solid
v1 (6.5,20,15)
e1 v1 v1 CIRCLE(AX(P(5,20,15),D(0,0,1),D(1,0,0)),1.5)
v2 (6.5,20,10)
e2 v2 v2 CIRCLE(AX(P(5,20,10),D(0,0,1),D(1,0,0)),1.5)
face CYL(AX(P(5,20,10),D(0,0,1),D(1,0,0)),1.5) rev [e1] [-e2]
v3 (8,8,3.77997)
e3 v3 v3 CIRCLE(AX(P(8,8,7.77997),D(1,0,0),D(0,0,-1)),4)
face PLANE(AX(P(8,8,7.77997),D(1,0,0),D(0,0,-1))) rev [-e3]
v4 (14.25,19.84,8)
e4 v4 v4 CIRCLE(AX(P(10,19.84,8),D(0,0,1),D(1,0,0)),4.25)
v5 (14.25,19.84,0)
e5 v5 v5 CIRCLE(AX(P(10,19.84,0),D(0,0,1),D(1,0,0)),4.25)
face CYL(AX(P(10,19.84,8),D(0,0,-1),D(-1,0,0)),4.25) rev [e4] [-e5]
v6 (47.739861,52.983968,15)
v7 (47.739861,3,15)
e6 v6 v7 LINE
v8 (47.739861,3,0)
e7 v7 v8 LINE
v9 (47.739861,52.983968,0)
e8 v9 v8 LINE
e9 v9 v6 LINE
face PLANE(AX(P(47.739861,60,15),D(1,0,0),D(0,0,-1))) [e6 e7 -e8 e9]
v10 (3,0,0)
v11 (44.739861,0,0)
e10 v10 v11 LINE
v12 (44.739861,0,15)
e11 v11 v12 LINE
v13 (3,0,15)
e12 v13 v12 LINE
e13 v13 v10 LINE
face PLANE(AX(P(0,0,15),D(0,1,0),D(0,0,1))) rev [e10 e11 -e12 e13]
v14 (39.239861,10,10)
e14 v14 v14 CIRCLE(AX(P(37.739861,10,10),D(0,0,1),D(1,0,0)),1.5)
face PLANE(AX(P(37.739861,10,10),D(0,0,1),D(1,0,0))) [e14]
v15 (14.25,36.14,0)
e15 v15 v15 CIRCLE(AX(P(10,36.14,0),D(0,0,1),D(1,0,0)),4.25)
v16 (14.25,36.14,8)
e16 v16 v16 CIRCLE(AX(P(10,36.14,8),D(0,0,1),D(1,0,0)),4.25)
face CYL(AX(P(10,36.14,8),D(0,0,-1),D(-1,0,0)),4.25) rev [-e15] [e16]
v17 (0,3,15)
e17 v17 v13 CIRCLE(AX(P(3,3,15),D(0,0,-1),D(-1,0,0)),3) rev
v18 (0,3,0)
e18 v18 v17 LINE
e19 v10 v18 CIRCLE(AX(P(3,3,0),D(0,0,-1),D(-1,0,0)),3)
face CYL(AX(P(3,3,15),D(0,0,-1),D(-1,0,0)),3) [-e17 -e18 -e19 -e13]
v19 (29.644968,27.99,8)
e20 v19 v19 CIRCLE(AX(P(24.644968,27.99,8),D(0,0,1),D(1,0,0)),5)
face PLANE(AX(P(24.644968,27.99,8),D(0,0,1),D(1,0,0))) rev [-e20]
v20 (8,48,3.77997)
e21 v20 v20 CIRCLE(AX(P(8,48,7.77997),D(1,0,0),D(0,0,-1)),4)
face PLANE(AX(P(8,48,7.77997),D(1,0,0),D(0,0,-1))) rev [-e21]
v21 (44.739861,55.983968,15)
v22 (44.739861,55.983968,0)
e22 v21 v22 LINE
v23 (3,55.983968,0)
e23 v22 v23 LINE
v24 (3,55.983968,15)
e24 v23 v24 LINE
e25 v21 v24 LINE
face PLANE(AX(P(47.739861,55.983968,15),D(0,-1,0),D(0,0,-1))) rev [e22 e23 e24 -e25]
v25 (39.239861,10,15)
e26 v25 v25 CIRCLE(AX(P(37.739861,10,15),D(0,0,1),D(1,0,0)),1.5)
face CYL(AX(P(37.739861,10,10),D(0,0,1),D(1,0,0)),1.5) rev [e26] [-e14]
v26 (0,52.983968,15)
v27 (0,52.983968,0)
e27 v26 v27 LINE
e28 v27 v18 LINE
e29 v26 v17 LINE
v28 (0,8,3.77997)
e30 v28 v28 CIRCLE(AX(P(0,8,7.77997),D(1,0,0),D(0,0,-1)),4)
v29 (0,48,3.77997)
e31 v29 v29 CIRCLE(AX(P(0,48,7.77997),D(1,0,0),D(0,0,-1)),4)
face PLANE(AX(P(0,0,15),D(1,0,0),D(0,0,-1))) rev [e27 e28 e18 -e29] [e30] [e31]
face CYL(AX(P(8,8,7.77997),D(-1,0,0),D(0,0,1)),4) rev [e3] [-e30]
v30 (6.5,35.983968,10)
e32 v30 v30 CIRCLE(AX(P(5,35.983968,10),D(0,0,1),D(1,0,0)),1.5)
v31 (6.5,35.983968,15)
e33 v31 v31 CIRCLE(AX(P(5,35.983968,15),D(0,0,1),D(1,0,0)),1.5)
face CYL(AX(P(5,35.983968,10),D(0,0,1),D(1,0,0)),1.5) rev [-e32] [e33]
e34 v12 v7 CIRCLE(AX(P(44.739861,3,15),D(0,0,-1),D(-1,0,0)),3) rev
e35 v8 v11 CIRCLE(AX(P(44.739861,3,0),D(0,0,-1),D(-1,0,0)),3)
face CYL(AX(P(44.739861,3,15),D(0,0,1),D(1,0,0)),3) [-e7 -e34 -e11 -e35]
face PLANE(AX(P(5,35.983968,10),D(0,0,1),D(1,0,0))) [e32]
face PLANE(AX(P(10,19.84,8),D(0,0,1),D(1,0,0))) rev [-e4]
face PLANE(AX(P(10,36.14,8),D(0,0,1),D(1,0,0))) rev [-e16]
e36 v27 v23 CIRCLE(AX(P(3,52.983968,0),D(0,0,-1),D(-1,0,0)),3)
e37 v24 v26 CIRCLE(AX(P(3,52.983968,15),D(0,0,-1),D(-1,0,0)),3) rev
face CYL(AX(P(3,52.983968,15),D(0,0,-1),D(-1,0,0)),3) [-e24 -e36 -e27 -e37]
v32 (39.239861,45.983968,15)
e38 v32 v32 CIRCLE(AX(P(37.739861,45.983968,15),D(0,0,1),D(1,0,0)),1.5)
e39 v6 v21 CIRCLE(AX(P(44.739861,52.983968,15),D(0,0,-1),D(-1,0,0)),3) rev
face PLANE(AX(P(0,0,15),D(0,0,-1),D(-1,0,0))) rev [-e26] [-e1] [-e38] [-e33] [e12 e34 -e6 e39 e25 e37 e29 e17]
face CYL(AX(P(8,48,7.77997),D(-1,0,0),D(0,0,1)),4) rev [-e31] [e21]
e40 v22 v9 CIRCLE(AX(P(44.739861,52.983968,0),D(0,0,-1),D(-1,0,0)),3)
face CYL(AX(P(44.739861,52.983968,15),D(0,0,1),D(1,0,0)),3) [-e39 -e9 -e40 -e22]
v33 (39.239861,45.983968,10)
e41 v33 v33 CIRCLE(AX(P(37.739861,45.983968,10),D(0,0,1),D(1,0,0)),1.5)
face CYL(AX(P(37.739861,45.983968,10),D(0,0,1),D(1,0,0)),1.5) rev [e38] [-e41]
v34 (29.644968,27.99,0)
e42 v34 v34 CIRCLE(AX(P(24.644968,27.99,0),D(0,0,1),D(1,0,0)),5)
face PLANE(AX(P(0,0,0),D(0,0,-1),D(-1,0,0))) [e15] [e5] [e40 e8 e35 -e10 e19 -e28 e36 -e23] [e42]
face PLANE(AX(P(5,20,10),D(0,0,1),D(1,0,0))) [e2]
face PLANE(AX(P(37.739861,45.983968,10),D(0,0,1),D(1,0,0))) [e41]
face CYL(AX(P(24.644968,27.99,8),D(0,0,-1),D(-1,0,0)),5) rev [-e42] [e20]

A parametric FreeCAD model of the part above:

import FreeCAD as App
import Part
import Sketcher
from FreeCAD import Vector
Q = App.Units.Quantity


def edges_at(feature, points):
    """Names of the edges that pass closest to the given points."""
    edges = feature.Shape.Edges
    near = lambda p: min(range(len(edges)), key=lambda i: edges[i].distToShape(Part.Vertex(*p))[0])
    return sorted({f"Edge{near(p) + 1}" for p in points})

doc = App.newDocument("Part")
body = doc.addObject("PartDesign::Body", "Body")

# Sketch on XY plane
sketch1 = body.newObject("Sketcher::SketchObject", "Sketch")
sketch1.AttachmentSupport = (doc.getObject("XY_Plane"), [""])
sketch1.MapMode = "FlatFace"
sketch1.addGeometry(Part.LineSegment(Vector(0, 60, 0), Vector(0, 0, 0)), False)
sketch1.addGeometry(Part.LineSegment(Vector(0, 0, 0), Vector(50, 0, 0)), False)
sketch1.addGeometry(Part.LineSegment(Vector(50, 0, 0), Vector(50, 60, 0)), False)
sketch1.addGeometry(Part.LineSegment(Vector(50, 60, 0), Vector(0, 60, 0)), False)
sketch1.addConstraint(Sketcher.Constraint("Coincident", 0, 2, 1, 1))
sketch1.addConstraint(Sketcher.Constraint("Coincident", 1, 2, 2, 1))
sketch1.addConstraint(Sketcher.Constraint("Coincident", 2, 2, 3, 1))
sketch1.addConstraint(Sketcher.Constraint("Coincident", 3, 2, 0, 1))
sketch1.addConstraint(Sketcher.Constraint("Vertical", 0))
sketch1.addConstraint(Sketcher.Constraint("Horizontal", 1))
sketch1.addConstraint(Sketcher.Constraint("Vertical", 2))
sketch1.addConstraint(Sketcher.Constraint("Horizontal", 3))
sketch1.addConstraint(Sketcher.Constraint("Coincident", 0, 2, -1, 1))
sketch1.addConstraint(Sketcher.Constraint("DistanceX", 1, 1, 1, 2, Q("50 mm")))
sketch1.addConstraint(Sketcher.Constraint("DistanceY", 0, 2, 0, 1, Q("60 mm")))
pad1 = body.newObject("PartDesign::Pad", "Pad")
pad1.Profile = sketch1
pad1.Length = 15

# Sketch on XY plane
sketch2 = body.newObject("Sketcher::SketchObject", "Sketch001")
sketch2.AttachmentSupport = (doc.getObject("XY_Plane"), [""])
sketch2.MapMode = "FlatFace"
sketch2.addGeometry(Part.Circle(Vector(10, 36.1, 0), Vector(0, 0, 1), 4.2), False)
sketch2.addGeometry(Part.Circle(Vector(10, 19.8, 0), Vector(0, 0, 1), 4.2), False)
sketch2.addGeometry(Part.Circle(Vector(24.6, 28, 0), Vector(0, 0, 1), 5), False)
sketch2.addConstraint(Sketcher.Constraint("Equal", 0, 1))
sketch2.addConstraint(Sketcher.Constraint("Vertical", 0, 3, 1, 3))
sketch2.addConstraint(Sketcher.Constraint("Diameter", 2, Q("10 mm")))
sketch2.addConstraint(Sketcher.Constraint("Diameter", 0, Q("8.5 mm")))
sketch2.addConstraint(Sketcher.Constraint("DistanceX", -1, 1, 0, 3, Q("10 mm")))
sketch2.addConstraint(Sketcher.Constraint("DistanceY", 1, 3, 0, 3, Q("16.3 mm")))
sketch2.addConstraint(Sketcher.Constraint("DistanceY", -1, 1, 0, 3, Q("36.14 mm")))
sketch2.addConstraint(Sketcher.Constraint("DistanceY", -1, 1, 2, 3, Q("27.99 mm")))
sketch2.addConstraint(Sketcher.Constraint("DistanceX", -1, 1, 2, 3, Q("24.644968 mm")))
pocket1 = body.newObject("PartDesign::Pocket", "Pocket")
pocket1.Profile = sketch2
pocket1.Length = 8
pocket1.Reversed = True

# Sketch on XY plane
sketch3 = body.newObject("Sketcher::SketchObject", "Sketch002")
sketch3.AttachmentSupport = (doc.getObject("XY_Plane"), [""])
sketch3.MapMode = "FlatFace"
sketch3.addGeometry(Part.LineSegment(Vector(47.7, 60, 0), Vector(47.7, 0, 0)), False)
sketch3.addGeometry(Part.LineSegment(Vector(47.7, 0, 0), Vector(50, 0, 0)), False)
sketch3.addGeometry(Part.LineSegment(Vector(50, 0, 0), Vector(50, 60, 0)), False)
sketch3.addGeometry(Part.LineSegment(Vector(50, 60, 0), Vector(47.7, 60, 0)), False)
sketch3.addConstraint(Sketcher.Constraint("Coincident", 0, 2, 1, 1))
sketch3.addConstraint(Sketcher.Constraint("Coincident", 1, 2, 2, 1))
sketch3.addConstraint(Sketcher.Constraint("Coincident", 2, 2, 3, 1))
sketch3.addConstraint(Sketcher.Constraint("Coincident", 3, 2, 0, 1))
sketch3.addConstraint(Sketcher.Constraint("Vertical", 0))
sketch3.addConstraint(Sketcher.Constraint("Horizontal", 1))
sketch3.addConstraint(Sketcher.Constraint("Vertical", 2))
sketch3.addConstraint(Sketcher.Constraint("Horizontal", 3))
sketch3.addConstraint(Sketcher.Constraint("PointOnObject", 0, 2, -1))
sketch3.addConstraint(Sketcher.Constraint("DistanceY", 0, 2, 0, 1, Q("60 mm")))
sketch3.addConstraint(Sketcher.Constraint("DistanceX", -1, 1, 1, 2, Q("50 mm")))
sketch3.addConstraint(Sketcher.Constraint("DistanceX", 1, 1, 1, 2, Q("2.260139 mm")))
pocket2 = body.newObject("PartDesign::Pocket", "Pocket001")
pocket2.Profile = sketch3
pocket2.Type = "ThroughAll"
pocket2.Reversed = True

# Sketch on YZ plane
sketch4 = body.newObject("Sketcher::SketchObject", "Sketch003")
sketch4.AttachmentSupport = (doc.getObject("YZ_Plane"), [""])
sketch4.MapMode = "FlatFace"
sketch4.addGeometry(Part.Circle(Vector(8, 7.8, 0), Vector(0, 0, 1), 4), False)
sketch4.addGeometry(Part.Circle(Vector(48, 7.8, 0), Vector(0, 0, 1), 4), False)
sketch4.addConstraint(Sketcher.Constraint("Equal", 0, 1))
sketch4.addConstraint(Sketcher.Constraint("Horizontal", 0, 3, 1, 3))
sketch4.addConstraint(Sketcher.Constraint("Diameter", 0, Q("8 mm")))
sketch4.addConstraint(Sketcher.Constraint("DistanceX", -1, 1, 0, 3, Q("8 mm")))
sketch4.addConstraint(Sketcher.Constraint("DistanceX", -1, 1, 1, 3, Q("48 mm")))
sketch4.addConstraint(Sketcher.Constraint("DistanceY", -1, 1, 0, 3, Q("7.77997 mm")))
pocket3 = body.newObject("PartDesign::Pocket", "Pocket002")
pocket3.Profile = sketch4
pocket3.Length = 8
pocket3.Reversed = True

# Sketch on XY plane
sketch5 = body.newObject("Sketcher::SketchObject", "Sketch004")
sketch5.AttachmentSupport = (doc.getObject("XY_Plane"), [""])
sketch5.MapMode = "FlatFace"
sketch5.addGeometry(Part.LineSegment(Vector(47.7, 60, 0), Vector(47.7, 56, 0)), False)
sketch5.addGeometry(Part.LineSegment(Vector(47.7, 56, 0), Vector(0, 56, 0)), False)
sketch5.addGeometry(Part.LineSegment(Vector(0, 56, 0), Vector(0, 60, 0)), False)
sketch5.addGeometry(Part.LineSegment(Vector(0, 60, 0), Vector(47.7, 60, 0)), False)
sketch5.addConstraint(Sketcher.Constraint("Coincident", 0, 2, 1, 1))
sketch5.addConstraint(Sketcher.Constraint("Coincident", 1, 2, 2, 1))
sketch5.addConstraint(Sketcher.Constraint("Coincident", 2, 2, 3, 1))
sketch5.addConstraint(Sketcher.Constraint("Coincident", 3, 2, 0, 1))
sketch5.addConstraint(Sketcher.Constraint("Vertical", 0))
sketch5.addConstraint(Sketcher.Constraint("Horizontal", 1))
sketch5.addConstraint(Sketcher.Constraint("Vertical", 2))
sketch5.addConstraint(Sketcher.Constraint("Horizontal", 3))
sketch5.addConstraint(Sketcher.Constraint("PointOnObject", 1, 2, -2))
sketch5.addConstraint(Sketcher.Constraint("DistanceY", -1, 1, 2, 2, Q("60 mm")))
sketch5.addConstraint(Sketcher.Constraint("DistanceX", 1, 2, 1, 1, Q("47.739861 mm")))
sketch5.addConstraint(Sketcher.Constraint("DistanceY", 0, 2, 0, 1, Q("4.016032 mm")))
pocket4 = body.newObject("PartDesign::Pocket", "Pocket003")
pocket4.Profile = sketch5
pocket4.Type = "ThroughAll"
pocket4.Reversed = True
doc.recompute()

fillet = body.newObject("PartDesign::Fillet", "Fillet")
fillet.Base = (pocket4, edges_at(pocket4, [
    (47.74, 0, 7.5),
    (47.74, 55.984, 7.5),
    (0, 55.984, 7.5),
    (0, 0, 7.5),
]))
fillet.Radius = 3

# Sketch on XY plane
sketch6 = body.newObject("Sketcher::SketchObject", "Sketch005")
sketch6.AttachmentSupport = (doc.getObject("XY_Plane"), [""])
sketch6.MapMode = "FlatFace"
sketch6.AttachmentOffset = App.Placement(Vector(0, 0, 15), App.Rotation())
sketch6.addGeometry(Part.Circle(Vector(37.7, 46, 0), Vector(0, 0, 1), 1.5), False)
sketch6.addGeometry(Part.Circle(Vector(37.7, 10, 0), Vector(0, 0, 1), 1.5), False)
sketch6.addGeometry(Part.Circle(Vector(5, 20, 0), Vector(0, 0, 1), 1.5), False)
sketch6.addGeometry(Part.Circle(Vector(5, 36, 0), Vector(0, 0, 1), 1.5), False)
sketch6.addConstraint(Sketcher.Constraint("Equal", 0, 1))
sketch6.addConstraint(Sketcher.Constraint("Equal", 1, 2))
sketch6.addConstraint(Sketcher.Constraint("Equal", 2, 3))
sketch6.addConstraint(Sketcher.Constraint("Vertical", 0, 3, 1, 3))
sketch6.addConstraint(Sketcher.Constraint("Vertical", 2, 3, 3, 3))
sketch6.addConstraint(Sketcher.Constraint("Diameter", 0, Q("3 mm")))
sketch6.addConstraint(Sketcher.Constraint("DistanceY", -1, 1, 1, 3, Q("10 mm")))
sketch6.addConstraint(Sketcher.Constraint("DistanceX", -1, 1, 2, 3, Q("5 mm")))
sketch6.addConstraint(Sketcher.Constraint("DistanceY", -1, 1, 2, 3, Q("20 mm")))
sketch6.addConstraint(Sketcher.Constraint("DistanceY", 3, 3, 0, 3, Q("10 mm")))
sketch6.addConstraint(Sketcher.Constraint("DistanceX", -1, 1, 0, 3, Q("37.739861 mm")))
sketch6.addConstraint(Sketcher.Constraint("DistanceY", -1, 1, 0, 3, Q("45.983968 mm")))
pocket5 = body.newObject("PartDesign::Pocket", "Pocket004")
pocket5.Profile = sketch6
pocket5.Length = 5

doc.recompute()
